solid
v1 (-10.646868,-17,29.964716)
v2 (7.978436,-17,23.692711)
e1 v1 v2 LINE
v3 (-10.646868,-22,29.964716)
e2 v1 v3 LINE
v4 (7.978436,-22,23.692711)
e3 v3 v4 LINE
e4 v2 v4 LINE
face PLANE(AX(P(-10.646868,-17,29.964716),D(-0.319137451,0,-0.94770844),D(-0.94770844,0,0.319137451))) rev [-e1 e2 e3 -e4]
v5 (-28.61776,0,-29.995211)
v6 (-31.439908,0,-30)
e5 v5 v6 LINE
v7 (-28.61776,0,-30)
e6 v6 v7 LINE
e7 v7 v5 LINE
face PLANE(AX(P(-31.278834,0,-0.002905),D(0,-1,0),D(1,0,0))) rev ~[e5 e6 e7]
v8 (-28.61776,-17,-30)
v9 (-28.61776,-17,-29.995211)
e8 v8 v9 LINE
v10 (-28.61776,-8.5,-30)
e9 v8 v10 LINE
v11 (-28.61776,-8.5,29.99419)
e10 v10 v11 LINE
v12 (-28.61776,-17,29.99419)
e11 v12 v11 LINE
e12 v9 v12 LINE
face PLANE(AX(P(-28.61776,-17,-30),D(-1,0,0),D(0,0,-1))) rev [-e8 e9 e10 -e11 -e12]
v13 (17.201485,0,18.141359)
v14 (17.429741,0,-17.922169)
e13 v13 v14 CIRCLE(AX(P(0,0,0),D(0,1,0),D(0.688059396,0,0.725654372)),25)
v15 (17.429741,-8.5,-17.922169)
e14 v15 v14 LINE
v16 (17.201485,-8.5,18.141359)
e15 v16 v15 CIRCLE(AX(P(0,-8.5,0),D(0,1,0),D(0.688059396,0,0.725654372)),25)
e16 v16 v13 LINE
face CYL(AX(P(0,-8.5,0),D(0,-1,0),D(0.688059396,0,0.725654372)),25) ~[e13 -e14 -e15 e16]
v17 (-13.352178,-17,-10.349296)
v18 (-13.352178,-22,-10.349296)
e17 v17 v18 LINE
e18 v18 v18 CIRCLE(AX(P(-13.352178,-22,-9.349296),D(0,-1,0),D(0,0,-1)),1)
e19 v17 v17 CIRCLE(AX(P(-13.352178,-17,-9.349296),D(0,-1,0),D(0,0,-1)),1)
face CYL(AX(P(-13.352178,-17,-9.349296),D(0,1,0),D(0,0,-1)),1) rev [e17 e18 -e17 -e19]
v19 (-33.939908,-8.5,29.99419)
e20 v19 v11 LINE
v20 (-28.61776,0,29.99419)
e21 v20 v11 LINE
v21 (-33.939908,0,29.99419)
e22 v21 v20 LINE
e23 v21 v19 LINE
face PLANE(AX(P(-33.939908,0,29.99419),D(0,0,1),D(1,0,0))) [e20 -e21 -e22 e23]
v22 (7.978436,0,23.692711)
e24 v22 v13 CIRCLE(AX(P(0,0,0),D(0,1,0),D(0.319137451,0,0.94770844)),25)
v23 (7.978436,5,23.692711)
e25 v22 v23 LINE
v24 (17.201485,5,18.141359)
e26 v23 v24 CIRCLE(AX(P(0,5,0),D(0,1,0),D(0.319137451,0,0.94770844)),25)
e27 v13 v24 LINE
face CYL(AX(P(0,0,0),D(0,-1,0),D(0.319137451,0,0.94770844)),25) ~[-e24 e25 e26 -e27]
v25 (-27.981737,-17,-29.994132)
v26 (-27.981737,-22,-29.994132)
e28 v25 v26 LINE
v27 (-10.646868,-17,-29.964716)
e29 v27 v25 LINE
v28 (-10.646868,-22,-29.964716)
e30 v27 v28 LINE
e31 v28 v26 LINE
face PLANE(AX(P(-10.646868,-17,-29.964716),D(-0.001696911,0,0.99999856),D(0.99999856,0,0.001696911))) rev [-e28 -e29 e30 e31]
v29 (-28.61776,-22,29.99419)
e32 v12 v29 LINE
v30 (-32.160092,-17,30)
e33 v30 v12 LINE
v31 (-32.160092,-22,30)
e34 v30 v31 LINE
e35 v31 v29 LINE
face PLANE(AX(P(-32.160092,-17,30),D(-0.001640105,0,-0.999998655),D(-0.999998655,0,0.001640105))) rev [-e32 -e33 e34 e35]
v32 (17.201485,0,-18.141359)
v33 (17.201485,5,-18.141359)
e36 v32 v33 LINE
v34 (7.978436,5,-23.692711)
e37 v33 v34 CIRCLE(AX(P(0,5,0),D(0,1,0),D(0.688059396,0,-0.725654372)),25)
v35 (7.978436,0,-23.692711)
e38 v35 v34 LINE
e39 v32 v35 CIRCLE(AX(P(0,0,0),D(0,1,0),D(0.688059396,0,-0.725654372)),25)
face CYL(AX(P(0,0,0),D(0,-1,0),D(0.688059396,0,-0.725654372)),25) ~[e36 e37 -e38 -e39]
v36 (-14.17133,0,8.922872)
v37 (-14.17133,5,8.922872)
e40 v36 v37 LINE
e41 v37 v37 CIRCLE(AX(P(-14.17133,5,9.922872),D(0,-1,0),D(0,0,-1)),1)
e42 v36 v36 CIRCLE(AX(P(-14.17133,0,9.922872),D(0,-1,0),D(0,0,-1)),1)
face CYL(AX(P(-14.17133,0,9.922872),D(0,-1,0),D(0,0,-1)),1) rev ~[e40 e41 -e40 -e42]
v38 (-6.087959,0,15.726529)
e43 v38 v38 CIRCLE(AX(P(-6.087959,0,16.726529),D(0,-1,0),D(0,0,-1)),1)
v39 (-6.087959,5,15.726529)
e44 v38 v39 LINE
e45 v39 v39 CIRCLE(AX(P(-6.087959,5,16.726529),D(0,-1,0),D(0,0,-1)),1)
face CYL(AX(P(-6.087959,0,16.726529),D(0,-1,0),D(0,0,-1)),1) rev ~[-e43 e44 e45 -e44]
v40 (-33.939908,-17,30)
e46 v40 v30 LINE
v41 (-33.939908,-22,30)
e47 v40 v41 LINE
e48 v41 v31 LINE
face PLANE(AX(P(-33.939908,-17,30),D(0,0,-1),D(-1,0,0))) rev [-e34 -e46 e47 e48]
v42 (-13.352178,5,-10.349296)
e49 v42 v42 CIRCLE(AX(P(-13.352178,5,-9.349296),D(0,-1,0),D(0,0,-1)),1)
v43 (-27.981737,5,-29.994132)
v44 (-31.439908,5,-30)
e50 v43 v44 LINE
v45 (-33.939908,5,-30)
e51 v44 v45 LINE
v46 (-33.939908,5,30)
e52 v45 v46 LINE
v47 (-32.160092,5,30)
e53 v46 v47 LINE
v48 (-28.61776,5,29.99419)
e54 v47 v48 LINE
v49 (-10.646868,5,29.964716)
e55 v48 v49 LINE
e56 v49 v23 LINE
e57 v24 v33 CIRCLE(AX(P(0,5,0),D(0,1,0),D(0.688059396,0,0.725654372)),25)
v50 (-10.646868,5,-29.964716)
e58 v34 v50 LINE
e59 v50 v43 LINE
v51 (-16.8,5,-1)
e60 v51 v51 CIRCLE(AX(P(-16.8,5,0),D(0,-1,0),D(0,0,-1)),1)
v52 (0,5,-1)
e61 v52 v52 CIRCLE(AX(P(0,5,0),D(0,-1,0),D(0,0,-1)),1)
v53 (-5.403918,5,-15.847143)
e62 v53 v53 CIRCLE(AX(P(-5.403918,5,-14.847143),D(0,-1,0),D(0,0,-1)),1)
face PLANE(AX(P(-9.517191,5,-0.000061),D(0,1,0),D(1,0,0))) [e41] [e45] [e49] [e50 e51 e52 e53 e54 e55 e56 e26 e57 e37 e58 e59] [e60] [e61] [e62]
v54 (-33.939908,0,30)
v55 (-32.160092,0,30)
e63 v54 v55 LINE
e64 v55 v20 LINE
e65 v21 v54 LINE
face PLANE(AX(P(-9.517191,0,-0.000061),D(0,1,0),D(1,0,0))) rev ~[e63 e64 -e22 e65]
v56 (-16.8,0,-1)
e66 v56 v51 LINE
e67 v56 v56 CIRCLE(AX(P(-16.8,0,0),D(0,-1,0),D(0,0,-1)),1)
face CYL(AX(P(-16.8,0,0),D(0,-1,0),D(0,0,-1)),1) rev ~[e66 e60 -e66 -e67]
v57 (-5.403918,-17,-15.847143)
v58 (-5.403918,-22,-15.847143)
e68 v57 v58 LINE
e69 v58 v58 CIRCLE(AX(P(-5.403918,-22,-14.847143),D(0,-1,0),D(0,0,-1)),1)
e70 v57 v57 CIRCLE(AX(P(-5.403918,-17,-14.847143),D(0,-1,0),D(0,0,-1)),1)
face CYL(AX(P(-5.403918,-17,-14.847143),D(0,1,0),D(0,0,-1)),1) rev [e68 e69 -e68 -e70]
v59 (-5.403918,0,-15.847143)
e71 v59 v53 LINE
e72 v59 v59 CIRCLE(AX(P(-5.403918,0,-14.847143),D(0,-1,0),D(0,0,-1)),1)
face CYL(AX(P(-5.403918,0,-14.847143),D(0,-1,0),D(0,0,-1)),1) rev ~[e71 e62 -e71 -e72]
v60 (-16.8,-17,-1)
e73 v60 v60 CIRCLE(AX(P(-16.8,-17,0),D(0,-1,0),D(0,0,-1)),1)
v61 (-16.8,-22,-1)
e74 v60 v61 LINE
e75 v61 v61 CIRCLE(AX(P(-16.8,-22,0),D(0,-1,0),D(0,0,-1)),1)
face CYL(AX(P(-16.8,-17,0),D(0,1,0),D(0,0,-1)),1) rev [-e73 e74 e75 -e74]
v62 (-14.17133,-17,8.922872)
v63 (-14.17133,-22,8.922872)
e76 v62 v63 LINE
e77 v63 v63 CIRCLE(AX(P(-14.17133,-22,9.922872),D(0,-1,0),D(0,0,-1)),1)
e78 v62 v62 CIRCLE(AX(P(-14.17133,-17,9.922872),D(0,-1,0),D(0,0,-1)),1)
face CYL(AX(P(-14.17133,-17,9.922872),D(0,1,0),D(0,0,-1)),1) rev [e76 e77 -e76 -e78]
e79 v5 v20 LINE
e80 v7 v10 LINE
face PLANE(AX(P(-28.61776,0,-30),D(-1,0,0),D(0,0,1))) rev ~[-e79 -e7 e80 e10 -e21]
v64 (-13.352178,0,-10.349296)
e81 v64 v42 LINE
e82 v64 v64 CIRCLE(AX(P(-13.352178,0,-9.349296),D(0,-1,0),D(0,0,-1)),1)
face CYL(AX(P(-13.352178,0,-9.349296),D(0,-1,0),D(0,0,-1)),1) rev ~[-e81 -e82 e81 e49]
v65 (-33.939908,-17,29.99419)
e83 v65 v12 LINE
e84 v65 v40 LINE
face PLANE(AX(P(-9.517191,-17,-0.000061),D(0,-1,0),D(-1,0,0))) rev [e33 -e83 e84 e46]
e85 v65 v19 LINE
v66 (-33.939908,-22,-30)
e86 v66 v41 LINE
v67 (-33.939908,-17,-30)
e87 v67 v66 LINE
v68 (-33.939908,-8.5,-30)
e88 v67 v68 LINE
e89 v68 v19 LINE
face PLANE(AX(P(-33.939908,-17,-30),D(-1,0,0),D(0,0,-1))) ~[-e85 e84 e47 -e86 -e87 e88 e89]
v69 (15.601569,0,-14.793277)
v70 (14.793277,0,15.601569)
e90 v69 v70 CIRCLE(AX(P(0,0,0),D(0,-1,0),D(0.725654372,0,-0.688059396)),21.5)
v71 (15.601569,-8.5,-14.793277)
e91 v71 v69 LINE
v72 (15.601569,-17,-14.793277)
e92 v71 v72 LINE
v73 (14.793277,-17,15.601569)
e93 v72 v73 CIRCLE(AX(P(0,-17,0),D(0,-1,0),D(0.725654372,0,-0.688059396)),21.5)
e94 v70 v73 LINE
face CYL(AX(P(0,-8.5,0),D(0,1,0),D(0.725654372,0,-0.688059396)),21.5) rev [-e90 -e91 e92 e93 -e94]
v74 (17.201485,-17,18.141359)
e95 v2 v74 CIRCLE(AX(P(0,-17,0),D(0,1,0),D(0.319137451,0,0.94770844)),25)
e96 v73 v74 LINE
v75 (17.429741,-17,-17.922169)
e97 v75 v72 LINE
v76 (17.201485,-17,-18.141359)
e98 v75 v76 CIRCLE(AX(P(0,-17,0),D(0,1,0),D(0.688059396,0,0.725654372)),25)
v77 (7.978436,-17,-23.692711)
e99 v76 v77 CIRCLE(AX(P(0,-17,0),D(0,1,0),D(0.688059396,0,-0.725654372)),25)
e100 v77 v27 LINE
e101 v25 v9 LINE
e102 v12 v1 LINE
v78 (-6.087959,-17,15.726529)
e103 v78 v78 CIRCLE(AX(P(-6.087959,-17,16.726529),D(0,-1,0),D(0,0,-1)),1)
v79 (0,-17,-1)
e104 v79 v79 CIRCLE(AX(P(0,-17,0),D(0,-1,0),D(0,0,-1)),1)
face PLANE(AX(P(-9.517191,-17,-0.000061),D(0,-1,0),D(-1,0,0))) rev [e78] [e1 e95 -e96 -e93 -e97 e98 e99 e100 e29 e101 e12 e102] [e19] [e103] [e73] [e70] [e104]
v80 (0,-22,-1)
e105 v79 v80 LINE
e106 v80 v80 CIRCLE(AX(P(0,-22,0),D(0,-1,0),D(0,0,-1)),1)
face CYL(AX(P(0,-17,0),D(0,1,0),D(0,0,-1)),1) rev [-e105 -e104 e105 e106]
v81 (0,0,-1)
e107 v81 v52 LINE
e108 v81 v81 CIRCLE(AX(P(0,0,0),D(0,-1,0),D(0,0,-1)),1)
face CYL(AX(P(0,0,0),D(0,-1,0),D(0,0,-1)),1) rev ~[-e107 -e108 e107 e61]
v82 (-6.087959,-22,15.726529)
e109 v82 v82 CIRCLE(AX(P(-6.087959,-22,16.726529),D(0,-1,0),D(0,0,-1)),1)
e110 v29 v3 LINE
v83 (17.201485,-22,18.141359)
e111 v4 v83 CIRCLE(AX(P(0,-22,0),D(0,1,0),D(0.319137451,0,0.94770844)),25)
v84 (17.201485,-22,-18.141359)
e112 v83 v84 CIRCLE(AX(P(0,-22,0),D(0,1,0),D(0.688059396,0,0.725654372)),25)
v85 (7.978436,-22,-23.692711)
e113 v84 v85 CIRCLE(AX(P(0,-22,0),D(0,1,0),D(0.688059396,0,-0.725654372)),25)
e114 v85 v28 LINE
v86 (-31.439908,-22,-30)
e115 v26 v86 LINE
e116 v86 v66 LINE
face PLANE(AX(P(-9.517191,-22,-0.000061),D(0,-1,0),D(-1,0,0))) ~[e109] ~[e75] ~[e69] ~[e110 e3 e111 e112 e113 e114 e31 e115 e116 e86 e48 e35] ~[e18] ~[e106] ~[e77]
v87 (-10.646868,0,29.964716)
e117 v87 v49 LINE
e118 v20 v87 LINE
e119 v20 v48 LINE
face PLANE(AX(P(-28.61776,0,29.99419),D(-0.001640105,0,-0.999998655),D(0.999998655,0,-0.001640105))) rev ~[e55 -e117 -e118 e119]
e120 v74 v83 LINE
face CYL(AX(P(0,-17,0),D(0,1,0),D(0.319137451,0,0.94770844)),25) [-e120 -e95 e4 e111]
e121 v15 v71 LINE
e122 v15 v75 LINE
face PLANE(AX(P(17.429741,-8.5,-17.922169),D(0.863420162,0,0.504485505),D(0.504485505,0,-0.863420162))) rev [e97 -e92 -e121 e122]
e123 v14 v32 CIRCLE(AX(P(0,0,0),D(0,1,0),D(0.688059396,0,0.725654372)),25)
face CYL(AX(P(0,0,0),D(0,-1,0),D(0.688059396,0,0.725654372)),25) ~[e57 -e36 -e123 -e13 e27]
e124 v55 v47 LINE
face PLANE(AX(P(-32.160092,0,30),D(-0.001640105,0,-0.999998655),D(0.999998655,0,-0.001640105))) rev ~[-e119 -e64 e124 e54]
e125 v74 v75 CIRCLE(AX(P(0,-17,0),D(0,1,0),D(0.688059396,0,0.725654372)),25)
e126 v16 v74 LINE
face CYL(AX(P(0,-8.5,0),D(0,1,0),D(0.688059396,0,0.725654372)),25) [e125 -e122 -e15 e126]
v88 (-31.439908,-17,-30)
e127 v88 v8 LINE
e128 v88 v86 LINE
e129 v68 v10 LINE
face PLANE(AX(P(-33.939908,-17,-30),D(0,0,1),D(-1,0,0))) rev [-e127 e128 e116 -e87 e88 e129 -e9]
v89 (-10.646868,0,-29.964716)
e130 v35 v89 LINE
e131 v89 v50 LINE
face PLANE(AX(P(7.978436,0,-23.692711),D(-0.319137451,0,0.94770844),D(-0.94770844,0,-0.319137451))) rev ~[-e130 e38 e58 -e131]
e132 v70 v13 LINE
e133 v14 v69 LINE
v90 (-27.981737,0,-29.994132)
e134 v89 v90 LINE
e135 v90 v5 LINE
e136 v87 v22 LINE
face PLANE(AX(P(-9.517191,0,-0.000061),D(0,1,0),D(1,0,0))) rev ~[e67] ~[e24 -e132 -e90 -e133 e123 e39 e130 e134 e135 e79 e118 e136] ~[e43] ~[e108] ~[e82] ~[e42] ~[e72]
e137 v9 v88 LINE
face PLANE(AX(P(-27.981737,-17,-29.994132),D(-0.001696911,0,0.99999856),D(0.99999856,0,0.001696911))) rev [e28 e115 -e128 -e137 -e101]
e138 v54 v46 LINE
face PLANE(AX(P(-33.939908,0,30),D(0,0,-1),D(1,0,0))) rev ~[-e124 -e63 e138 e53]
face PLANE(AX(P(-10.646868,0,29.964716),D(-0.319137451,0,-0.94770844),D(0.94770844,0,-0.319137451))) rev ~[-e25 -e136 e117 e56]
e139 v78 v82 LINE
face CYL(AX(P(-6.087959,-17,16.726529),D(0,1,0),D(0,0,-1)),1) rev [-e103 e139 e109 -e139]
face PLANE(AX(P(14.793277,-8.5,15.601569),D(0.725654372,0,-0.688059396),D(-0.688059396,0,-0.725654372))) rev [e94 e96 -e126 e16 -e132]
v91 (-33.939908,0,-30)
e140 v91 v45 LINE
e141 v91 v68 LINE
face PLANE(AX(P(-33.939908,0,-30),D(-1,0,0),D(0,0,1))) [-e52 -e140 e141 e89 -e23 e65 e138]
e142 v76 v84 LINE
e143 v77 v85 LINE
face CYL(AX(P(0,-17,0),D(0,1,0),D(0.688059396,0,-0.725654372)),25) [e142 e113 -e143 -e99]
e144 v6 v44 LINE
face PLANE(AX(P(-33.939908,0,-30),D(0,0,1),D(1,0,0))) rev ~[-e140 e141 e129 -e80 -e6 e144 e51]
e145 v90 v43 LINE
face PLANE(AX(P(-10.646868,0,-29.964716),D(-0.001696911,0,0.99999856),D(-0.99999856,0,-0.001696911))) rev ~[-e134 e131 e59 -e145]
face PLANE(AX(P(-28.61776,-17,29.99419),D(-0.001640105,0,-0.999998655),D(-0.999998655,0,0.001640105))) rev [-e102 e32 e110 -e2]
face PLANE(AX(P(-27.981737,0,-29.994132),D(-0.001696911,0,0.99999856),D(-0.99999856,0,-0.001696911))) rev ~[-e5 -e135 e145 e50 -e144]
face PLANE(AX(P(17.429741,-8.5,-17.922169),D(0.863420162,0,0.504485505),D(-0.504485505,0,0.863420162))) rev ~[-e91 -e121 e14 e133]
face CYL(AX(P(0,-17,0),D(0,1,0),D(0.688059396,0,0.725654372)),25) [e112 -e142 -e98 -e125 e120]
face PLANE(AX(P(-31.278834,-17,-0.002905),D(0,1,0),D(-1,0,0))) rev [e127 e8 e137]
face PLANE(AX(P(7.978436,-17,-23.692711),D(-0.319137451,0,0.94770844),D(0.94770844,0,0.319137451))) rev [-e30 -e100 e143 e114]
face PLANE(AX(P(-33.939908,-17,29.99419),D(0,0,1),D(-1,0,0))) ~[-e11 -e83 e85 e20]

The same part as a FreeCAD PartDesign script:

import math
import FreeCAD as App
import Part
import Sketcher
from FreeCAD import Vector
Q = App.Units.Quantity


def add_polygon(sketch, points):
    """Adds a closed chain of lines whose ends are joined by coincident constraints."""
    first, n = sketch.GeometryCount, len(points)
    for a, b in zip(points, points[1:] + points[:1]):
        sketch.addGeometry(Part.LineSegment(App.Vector(*a, 0), App.Vector(*b, 0)), False)
    for i in range(n):
        sketch.addConstraint(Sketcher.Constraint("Coincident", first + i, 2, first + (i + 1) % n, 1))

doc = App.newDocument("Part")
body = doc.addObject("PartDesign::Body", "Body")

# Sketch on XZ plane
sketch1 = doc.addObject("Sketcher::SketchObject", "Sketch")
body.addObject(sketch1)
sketch1.AttachmentSupport = (doc.XZ_Plane, [""])
sketch1.MapMode = "FlatFace"
sketch1.addGeometry([
    Part.LineSegment(Vector(-32.160092, 30, 0), Vector(-28.61776, 29.99419, 0)),  # 0
    Part.LineSegment(Vector(-28.61776, 29.99419, 0), Vector(-10.646868, 29.964716, 0)),  # 1
    Part.LineSegment(Vector(-10.646868, 29.964716, 0), Vector(7.978436, 23.692711, 0)),  # 2
    Part.ArcOfCircle(Part.Circle(Vector(0, 0, 0), Vector(0, 0, 1), 25), math.radians(46.523311), math.radians(71.38923)),  # 3
    Part.ArcOfCircle(Part.Circle(Vector(0, 0, 0), Vector(0, 0, 1), 25), math.radians(-46.523311), math.radians(46.523311)),  # 4
    Part.ArcOfCircle(Part.Circle(Vector(0, 0, 0), Vector(0, 0, 1), 25), math.radians(-71.38923), math.radians(-46.523311)),  # 5
    Part.LineSegment(Vector(7.978436, -23.692711, 0), Vector(-10.646868, -29.964716, 0)),  # 6
    Part.LineSegment(Vector(-10.646868, -29.964716, 0), Vector(-27.981737, -29.994132, 0)),  # 7
    Part.LineSegment(Vector(-27.981737, -29.994132, 0), Vector(-31.439908, -30, 0)),  # 8
    Part.LineSegment(Vector(-31.439908, -30, 0), Vector(-33.939908, -30, 0)),  # 9
    Part.LineSegment(Vector(-33.939908, -30, 0), Vector(-33.939908, 30, 0)),  # 10
    Part.LineSegment(Vector(-33.939908, 30, 0), Vector(-32.160092, 30, 0)),  # 11
], False)
sketch1.addConstraint([
    Sketcher.Constraint("Coincident", 0, 2, 1, 1),
    Sketcher.Constraint("Coincident", 1, 2, 2, 1),
    Sketcher.Constraint("Coincident", 2, 2, 3, 2),
    Sketcher.Constraint("Coincident", 3, 1, 4, 2),
    Sketcher.Constraint("Coincident", 4, 1, 5, 2),
    Sketcher.Constraint("Coincident", 5, 1, 6, 1),
    Sketcher.Constraint("Coincident", 6, 2, 7, 1),
    Sketcher.Constraint("Coincident", 7, 2, 8, 1),
    Sketcher.Constraint("Coincident", 8, 2, 9, 1),
    Sketcher.Constraint("Coincident", 9, 2, 10, 1),
    Sketcher.Constraint("Coincident", 10, 2, 11, 1),
    Sketcher.Constraint("Coincident", 11, 2, 0, 1),
    Sketcher.Constraint("Horizontal", 9),
    Sketcher.Constraint("Vertical", 10),
    Sketcher.Constraint("Horizontal", 11),
    Sketcher.Constraint("Coincident", 3, 3, -1, 1),
    Sketcher.Constraint("Coincident", 4, 3, -1, 1),
    Sketcher.Constraint("Coincident", 5, 3, -1, 1),
    Sketcher.Constraint("Radius", 3, Q("25 mm")),
    Sketcher.Constraint("DistanceY", 10, 1, 10, 2, Q("60 mm")),
    Sketcher.Constraint("DistanceX", 9, 2, 9, 1, Q("2.5 mm")),
    Sketcher.Constraint("DistanceY", 8, 2, -1, 1, Q("30 mm")),
    Sketcher.Constraint("Distance", 2, Q("19.65299 mm")),
    Sketcher.Constraint("Distance", 6, Q("19.65299 mm")),
    Sketcher.Constraint("DistanceX", 11, 1, 11, 2, Q("1.779816 mm")),
    Sketcher.Constraint("DistanceX", 0, 2, -1, 1, Q("28.61776 mm")),
    Sketcher.Constraint("DistanceY", -1, 1, 0, 2, Q("29.99419 mm")),
    Sketcher.Constraint("DistanceY", -1, 1, 2, 2, Q("23.692711 mm")),
    Sketcher.Constraint("DistanceY", -1, 1, 3, 1, Q("18.141359 mm")),
    Sketcher.Constraint("DistanceY", 4, 1, -1, 1, Q("18.141359 mm")),
    Sketcher.Constraint("DistanceY", 5, 1, -1, 1, Q("23.692711 mm")),
    Sketcher.Constraint("DistanceY", 7, 2, -1, 1, Q("29.994132 mm")),
    Sketcher.Constraint("DistanceX", 0, 2, 1, 2, Q("17.970892 mm")),
    Sketcher.Constraint("DistanceX", 7, 2, 6, 2, Q("17.334869 mm")),
    Sketcher.Constraint("DistanceX", 8, 2, 7, 2, Q("3.458171 mm")),
    Sketcher.Constraint("DistanceX", 10, 2, 0, 2, Q("5.322148 mm")),
])
pad1 = doc.addObject("PartDesign::Pad", "Pad")
body.addObject(pad1)
pad1.Profile = sketch1
pad1.Length = 5
pad1.Reversed = True

# Sketch on XZ plane
sketch2 = doc.addObject("Sketcher::SketchObject", "Sketch001")
body.addObject(sketch2)
sketch2.AttachmentSupport = (doc.XZ_Plane, [""])
sketch2.MapMode = "FlatFace"
add_polygon(sketch2, [(-34, 30), (-34, -30), (-29, -30), (-29, 30)])  # lines 0-3
sketch2.addConstraint([
    Sketcher.Constraint("Vertical", 0),
    Sketcher.Constraint("Horizontal", 1),
    Sketcher.Constraint("Vertical", 2),
    Sketcher.Constraint("Horizontal", 3),
    Sketcher.Constraint("DistanceY", 0, 2, -1, 1, Q("30 mm")),
    Sketcher.Constraint("DistanceX", 1, 1, 1, 2, Q("5.322148 mm")),
    Sketcher.Constraint("DistanceY", 0, 2, 0, 1, Q("59.99419 mm")),
    Sketcher.Constraint("DistanceX", 1, 2, -1, 1, Q("28.61776 mm")),
])
pad2 = doc.addObject("PartDesign::Pad", "Pad001")
body.addObject(pad2)
pad2.Profile = sketch2
pad2.Length = 8.5

# Sketch on XZ plane
sketch3 = doc.addObject("Sketcher::SketchObject", "Sketch002")
body.addObject(sketch3)
sketch3.AttachmentSupport = (doc.XZ_Plane, [""])
sketch3.MapMode = "FlatFace"
sketch3.AttachmentOffset = App.Placement(Vector(0, 0, 8.5), App.Rotation())
sketch3.addGeometry([
    Part.LineSegment(Vector(17.2, 18.1, 0), Vector(14.8, 15.6, 0)),
    Part.ArcOfCircle(Part.Circle(Vector(0, 0, 0), Vector(0, 0, 1), 21.5), math.radians(-43), math.radians(47)),
    Part.LineSegment(Vector(15.6, -14.8, 0), Vector(17.4, -17.9, 0)),
    Part.ArcOfCircle(Part.Circle(Vector(0, 0, 0), Vector(0, 0, 1), 25), math.radians(-46), math.radians(47)),
], False)
sketch3.addConstraint([
    Sketcher.Constraint("Coincident", 0, 2, 1, 2),
    Sketcher.Constraint("Coincident", 1, 1, 2, 1),
    Sketcher.Constraint("Coincident", 2, 2, 3, 1),
    Sketcher.Constraint("Coincident", 3, 2, 0, 1),
    Sketcher.Constraint("Coincident", 1, 3, -1, 1),
    Sketcher.Constraint("Coincident", 3, 3, -1, 1),
    Sketcher.Constraint("Radius", 3, Q("25 mm")),
    Sketcher.Constraint("Radius", 1, Q("21.5 mm")),
    Sketcher.Constraint("DistanceY", -1, 1, 0, 2, Q("15.601569 mm")),
    Sketcher.Constraint("DistanceX", -1, 1, 1, 1, Q("15.601569 mm")),
    Sketcher.Constraint("DistanceX", -1, 1, 2, 2, Q("17.429741 mm")),
    Sketcher.Constraint("DistanceY", -1, 1, 3, 2, Q("18.141359 mm")),
])
pad3 = doc.addObject("PartDesign::Pad", "Pad002")
body.addObject(pad3)
pad3.Profile = sketch3
pad3.Length = 8.5
pad3.Reversed = True

# Sketch on XZ plane
sketch4 = doc.addObject("Sketcher::SketchObject", "Sketch003")
body.addObject(sketch4)
sketch4.AttachmentSupport = (doc.XZ_Plane, [""])
sketch4.MapMode = "FlatFace"
sketch4.addGeometry([
    Part.Circle(Vector(-6.1, 16.7, 0), Vector(0, 0, 1), 1),  # 0
    Part.Circle(Vector(0, 0, 0), Vector(0, 0, 1), 1),  # 1
    Part.Circle(Vector(-14.2, 9.9, 0), Vector(0, 0, 1), 1),  # 2
    Part.Circle(Vector(-16.8, 0, 0), Vector(0, 0, 1), 1),  # 3
    Part.Circle(Vector(-13.4, -9.3, 0), Vector(0, 0, 1), 1),  # 4
    Part.Circle(Vector(-5.4, -14.8, 0), Vector(0, 0, 1), 1),  # 5
], False)
sketch4.addConstraint([
    Sketcher.Constraint("Coincident", 1, 3, -1, 1),
    Sketcher.Constraint("Equal", 0, 1),
    Sketcher.Constraint("Equal", 1, 2),
    Sketcher.Constraint("Equal", 2, 3),
    Sketcher.Constraint("Equal", 3, 4),
    Sketcher.Constraint("Equal", 4, 5),
    Sketcher.Constraint("PointOnObject", 3, 3, -1),
    Sketcher.Constraint("Diameter", 0, Q("2 mm")),
    Sketcher.Constraint("DistanceX", 3, 3, -1, 1, Q("16.8 mm")),
    Sketcher.Constraint("DistanceX", 0, 3, -1, 1, Q("6.087959 mm")),
    Sketcher.Constraint("DistanceY", -1, 1, 0, 3, Q("16.726529 mm")),
    Sketcher.Constraint("DistanceX", 2, 3, -1, 1, Q("14.17133 mm")),
    Sketcher.Constraint("DistanceX", 4, 3, -1, 1, Q("13.352178 mm")),
    Sketcher.Constraint("DistanceX", 5, 3, -1, 1, Q("5.403918 mm")),
    Sketcher.Constraint("DistanceY", 4, 3, 2, 3, Q("19.272168 mm")),
    Sketcher.Constraint("DistanceY", -1, 1, 2, 3, Q("9.922872 mm")),
    Sketcher.Constraint("DistanceY", 5, 3, -1, 1, Q("14.847143 mm")),
])
pocket1 = doc.addObject("PartDesign::Pocket", "Pocket")
body.addObject(pocket1)
pocket1.Profile = sketch4
pocket1.Length = 8.5
body2 = doc.addObject("PartDesign::Body", "Body001")
doc.recompute()

body2.BaseFeature = body
doc.recompute()

mirroring = doc.addObject("Part::Mirroring", "Mirroring")
mirroring.Source = body
mirroring.Base = Vector(0, -8.5, 0)
mirroring.Normal = Vector(0, 1, 0)
body3 = doc.addObject("PartDesign::Body", "Body002")
body3.BaseFeature = mirroring
boolean = doc.addObject("PartDesign::Boolean", "Boolean")
body2.addObject(boolean)
boolean.Type = "Fuse"
boolean.addObjects([body3])
doc.recompute()
mirroring.Visibility = False

doc.recompute()
